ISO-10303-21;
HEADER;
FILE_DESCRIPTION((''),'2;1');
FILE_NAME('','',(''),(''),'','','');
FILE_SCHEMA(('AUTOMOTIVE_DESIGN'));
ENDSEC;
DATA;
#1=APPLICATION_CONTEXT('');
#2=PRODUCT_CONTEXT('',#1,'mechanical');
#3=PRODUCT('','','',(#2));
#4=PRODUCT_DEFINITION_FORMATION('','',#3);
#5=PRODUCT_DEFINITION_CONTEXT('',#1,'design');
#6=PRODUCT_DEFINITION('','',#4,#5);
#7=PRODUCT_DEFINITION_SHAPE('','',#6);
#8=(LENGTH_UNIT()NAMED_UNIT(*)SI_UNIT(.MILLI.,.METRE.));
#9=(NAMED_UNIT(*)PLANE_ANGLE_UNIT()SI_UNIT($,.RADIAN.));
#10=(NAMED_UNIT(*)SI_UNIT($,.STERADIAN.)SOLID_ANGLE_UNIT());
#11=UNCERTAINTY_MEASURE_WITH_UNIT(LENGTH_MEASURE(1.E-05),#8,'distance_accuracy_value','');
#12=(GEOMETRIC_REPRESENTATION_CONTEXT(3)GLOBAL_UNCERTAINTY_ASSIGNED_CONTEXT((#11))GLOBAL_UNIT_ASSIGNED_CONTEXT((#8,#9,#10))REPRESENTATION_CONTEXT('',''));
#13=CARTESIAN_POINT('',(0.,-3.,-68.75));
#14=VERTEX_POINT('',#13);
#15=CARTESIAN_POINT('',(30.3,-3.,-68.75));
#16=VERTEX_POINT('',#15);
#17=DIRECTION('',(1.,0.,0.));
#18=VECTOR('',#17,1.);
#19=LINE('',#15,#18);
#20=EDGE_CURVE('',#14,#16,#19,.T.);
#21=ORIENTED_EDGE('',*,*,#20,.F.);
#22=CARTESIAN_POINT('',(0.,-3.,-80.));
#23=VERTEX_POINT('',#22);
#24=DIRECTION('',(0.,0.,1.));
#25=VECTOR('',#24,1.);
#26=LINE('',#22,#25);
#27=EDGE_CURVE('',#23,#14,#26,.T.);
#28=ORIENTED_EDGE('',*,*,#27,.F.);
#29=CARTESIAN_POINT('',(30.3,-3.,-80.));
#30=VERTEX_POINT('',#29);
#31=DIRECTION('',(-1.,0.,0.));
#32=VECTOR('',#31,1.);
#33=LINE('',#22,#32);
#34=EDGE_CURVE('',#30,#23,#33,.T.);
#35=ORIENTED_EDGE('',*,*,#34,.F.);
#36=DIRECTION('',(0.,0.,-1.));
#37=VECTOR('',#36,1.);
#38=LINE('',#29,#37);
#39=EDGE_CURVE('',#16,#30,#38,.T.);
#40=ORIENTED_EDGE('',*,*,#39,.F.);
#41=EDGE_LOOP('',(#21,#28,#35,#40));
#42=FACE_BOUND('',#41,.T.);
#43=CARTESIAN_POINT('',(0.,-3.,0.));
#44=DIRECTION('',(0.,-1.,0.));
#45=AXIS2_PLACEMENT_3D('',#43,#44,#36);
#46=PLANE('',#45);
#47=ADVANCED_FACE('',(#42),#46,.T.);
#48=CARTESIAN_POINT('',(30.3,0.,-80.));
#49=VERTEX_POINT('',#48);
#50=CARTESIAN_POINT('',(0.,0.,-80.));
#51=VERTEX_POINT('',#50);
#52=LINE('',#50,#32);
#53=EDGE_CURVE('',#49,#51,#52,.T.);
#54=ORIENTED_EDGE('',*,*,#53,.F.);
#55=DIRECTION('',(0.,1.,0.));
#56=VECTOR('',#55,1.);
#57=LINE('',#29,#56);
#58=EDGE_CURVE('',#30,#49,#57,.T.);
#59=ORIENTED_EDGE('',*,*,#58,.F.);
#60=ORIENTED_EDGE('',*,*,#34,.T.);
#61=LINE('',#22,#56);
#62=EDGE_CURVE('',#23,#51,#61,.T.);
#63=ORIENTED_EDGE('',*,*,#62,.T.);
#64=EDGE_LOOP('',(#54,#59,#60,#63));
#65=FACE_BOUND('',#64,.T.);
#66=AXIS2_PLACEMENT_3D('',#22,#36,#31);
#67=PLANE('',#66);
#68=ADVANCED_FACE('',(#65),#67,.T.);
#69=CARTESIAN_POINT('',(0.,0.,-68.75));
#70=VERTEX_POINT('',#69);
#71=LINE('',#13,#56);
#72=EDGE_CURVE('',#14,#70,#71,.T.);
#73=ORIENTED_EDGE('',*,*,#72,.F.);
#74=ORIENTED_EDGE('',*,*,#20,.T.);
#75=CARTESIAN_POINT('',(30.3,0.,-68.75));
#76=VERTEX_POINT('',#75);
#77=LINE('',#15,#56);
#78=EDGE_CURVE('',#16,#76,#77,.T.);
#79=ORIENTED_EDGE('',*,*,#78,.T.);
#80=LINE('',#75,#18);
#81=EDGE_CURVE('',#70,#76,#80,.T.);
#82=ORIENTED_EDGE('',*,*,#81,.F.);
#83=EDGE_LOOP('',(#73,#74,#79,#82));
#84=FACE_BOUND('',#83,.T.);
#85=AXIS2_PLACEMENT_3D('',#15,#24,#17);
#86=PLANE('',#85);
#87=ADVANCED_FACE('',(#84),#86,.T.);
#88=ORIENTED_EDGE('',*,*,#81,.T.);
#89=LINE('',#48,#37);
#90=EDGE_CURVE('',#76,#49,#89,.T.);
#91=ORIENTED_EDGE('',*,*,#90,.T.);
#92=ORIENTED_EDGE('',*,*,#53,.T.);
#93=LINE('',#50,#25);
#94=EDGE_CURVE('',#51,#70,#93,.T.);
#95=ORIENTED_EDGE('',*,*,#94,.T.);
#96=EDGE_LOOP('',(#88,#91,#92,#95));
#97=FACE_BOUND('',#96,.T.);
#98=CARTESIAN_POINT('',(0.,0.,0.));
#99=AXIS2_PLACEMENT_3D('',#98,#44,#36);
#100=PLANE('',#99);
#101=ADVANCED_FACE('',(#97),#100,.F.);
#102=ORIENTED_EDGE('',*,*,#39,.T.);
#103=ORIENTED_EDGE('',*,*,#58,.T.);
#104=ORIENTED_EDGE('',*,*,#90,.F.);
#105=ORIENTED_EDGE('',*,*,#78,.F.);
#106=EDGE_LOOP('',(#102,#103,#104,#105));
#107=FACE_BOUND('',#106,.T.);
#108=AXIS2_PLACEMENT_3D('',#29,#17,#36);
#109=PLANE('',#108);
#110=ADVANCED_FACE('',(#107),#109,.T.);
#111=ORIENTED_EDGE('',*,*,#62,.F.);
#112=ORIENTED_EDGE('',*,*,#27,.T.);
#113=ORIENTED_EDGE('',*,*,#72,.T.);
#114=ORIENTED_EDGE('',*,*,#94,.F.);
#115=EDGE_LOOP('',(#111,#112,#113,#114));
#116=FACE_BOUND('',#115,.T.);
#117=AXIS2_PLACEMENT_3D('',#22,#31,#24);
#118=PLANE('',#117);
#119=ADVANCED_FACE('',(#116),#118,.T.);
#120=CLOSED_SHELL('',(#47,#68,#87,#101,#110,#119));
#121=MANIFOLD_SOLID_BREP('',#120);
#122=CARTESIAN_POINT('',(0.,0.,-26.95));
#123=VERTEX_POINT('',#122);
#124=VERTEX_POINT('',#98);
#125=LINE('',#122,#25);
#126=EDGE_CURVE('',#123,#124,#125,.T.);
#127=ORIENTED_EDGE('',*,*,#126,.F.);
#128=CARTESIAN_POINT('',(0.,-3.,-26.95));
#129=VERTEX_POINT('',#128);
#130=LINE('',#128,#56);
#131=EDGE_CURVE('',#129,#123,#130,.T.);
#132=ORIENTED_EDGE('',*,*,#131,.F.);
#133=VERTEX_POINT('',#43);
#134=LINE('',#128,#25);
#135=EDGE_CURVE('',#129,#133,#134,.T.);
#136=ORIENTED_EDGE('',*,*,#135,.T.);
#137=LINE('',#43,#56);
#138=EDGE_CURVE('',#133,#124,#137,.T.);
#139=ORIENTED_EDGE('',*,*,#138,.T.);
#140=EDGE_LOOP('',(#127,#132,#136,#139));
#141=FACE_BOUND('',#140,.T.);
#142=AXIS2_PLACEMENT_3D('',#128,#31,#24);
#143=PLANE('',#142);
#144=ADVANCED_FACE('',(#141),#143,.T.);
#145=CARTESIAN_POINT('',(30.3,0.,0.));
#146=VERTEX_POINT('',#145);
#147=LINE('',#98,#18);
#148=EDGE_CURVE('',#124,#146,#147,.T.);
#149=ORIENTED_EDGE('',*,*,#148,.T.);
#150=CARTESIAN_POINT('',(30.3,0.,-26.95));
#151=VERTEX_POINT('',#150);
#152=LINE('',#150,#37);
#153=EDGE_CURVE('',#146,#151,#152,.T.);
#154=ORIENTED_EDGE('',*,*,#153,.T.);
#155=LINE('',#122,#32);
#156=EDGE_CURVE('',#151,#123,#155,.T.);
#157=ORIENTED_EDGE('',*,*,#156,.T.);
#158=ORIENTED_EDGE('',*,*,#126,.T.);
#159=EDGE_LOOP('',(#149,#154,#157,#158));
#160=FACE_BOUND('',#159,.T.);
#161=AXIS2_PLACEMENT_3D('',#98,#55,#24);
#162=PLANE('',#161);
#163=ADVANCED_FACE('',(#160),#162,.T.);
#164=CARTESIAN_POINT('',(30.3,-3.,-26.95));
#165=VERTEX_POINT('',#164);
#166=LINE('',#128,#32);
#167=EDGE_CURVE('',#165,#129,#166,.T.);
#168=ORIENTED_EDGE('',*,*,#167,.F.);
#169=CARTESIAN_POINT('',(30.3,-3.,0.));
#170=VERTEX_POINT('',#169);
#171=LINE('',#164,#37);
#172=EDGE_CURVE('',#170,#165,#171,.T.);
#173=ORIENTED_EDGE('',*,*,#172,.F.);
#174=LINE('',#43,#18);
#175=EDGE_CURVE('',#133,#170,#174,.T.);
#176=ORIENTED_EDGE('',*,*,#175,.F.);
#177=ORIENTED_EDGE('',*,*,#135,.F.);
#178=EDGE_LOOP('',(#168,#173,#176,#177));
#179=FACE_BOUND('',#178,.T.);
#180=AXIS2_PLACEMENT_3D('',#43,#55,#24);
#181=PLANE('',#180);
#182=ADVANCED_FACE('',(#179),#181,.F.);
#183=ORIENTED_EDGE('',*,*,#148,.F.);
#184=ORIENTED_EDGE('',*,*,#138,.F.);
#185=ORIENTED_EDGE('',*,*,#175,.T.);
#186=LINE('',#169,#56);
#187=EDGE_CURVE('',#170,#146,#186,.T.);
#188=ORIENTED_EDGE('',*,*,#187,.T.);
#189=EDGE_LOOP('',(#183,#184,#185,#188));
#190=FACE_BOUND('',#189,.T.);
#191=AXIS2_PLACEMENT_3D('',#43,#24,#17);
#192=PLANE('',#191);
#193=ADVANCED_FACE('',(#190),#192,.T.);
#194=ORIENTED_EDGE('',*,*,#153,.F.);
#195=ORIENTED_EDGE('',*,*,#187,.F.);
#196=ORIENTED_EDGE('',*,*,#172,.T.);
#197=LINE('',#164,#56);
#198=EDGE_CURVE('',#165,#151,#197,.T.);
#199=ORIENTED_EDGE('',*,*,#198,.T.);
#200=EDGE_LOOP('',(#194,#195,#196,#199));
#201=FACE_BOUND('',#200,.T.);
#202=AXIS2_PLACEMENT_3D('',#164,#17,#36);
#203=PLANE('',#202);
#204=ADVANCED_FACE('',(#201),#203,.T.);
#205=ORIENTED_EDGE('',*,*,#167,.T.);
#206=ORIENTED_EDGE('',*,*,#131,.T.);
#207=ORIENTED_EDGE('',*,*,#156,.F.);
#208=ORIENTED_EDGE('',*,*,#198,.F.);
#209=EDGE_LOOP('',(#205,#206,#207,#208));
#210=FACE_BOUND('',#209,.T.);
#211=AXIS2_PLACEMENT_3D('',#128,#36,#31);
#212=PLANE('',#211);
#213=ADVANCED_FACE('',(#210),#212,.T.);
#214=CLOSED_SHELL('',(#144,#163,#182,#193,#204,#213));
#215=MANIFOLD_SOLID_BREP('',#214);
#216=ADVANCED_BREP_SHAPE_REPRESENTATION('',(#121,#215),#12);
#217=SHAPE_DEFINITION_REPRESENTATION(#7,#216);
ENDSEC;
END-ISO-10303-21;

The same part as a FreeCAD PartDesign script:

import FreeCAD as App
import Part
import Sketcher


def add_polygon(sketch, points):
    """Adds a closed chain of lines whose ends are joined by coincident constraints."""
    first, n = sketch.GeometryCount, len(points)
    for a, b in zip(points, points[1:] + points[:1]):
        sketch.addGeometry(Part.LineSegment(App.Vector(*a, 0), App.Vector(*b, 0)), False)
    for i in range(n):
        sketch.addConstraint(Sketcher.Constraint("Coincident", first + i, 2, first + (i + 1) % n, 1))

doc = App.newDocument("Part")
body = doc.addObject("PartDesign::Body", "Body")

# Sketch on XZ plane
sketch1 = body.newObject("Sketcher::SketchObject", "Sketch")
sketch1.AttachmentSupport = (doc.getObject("XZ_Plane"), [""])
sketch1.MapMode = "FlatFace"
add_polygon(sketch1, [(0, -27), (0, 0), (30, 0), (30, -27)])  # lines 0-3
sketch1.addConstraint([
    Sketcher.Constraint("Vertical", 0),
    Sketcher.Constraint("Horizontal", 1),
    Sketcher.Constraint("Vertical", 2),
    Sketcher.Constraint("Horizontal", 3),
    Sketcher.Constraint("Coincident", 0, 2, -1, 1),
    Sketcher.Constraint("DistanceX", 1, 1, 1, 2, 30.3),
    Sketcher.Constraint("DistanceY", 0, 1, 0, 2, 26.95),
])
pad1 = body.newObject("PartDesign::Pad", "Pad")
pad1.Profile = sketch1
pad1.Length = 3
body2 = doc.addObject("PartDesign::Body", "Body001")

# Sketch on XZ plane
sketch2 = body2.newObject("Sketcher::SketchObject", "Sketch001")
sketch2.AttachmentSupport = (doc.getObject("XZ_Plane001"), [""])
sketch2.MapMode = "FlatFace"
add_polygon(sketch2, [(0, -80), (0, -69), (30, -69), (30, -80)])  # lines 0-3
sketch2.addConstraint([
    Sketcher.Constraint("Vertical", 0),
    Sketcher.Constraint("Horizontal", 1),
    Sketcher.Constraint("Vertical", 2),
    Sketcher.Constraint("Horizontal", 3),
    Sketcher.Constraint("PointOnObject", 0, 2, -2),
    Sketcher.Constraint("DistanceX", 1, 1, 1, 2, 30.3),
    Sketcher.Constraint("DistanceY", 2, 2, -1, 1, 80.0),
    Sketcher.Constraint("DistanceY", 0, 1, 0, 2, 11.25),
])
pad2 = body2.newObject("PartDesign::Pad", "Pad001")
pad2.Profile = sketch2
pad2.Length = 3

doc.recompute()
